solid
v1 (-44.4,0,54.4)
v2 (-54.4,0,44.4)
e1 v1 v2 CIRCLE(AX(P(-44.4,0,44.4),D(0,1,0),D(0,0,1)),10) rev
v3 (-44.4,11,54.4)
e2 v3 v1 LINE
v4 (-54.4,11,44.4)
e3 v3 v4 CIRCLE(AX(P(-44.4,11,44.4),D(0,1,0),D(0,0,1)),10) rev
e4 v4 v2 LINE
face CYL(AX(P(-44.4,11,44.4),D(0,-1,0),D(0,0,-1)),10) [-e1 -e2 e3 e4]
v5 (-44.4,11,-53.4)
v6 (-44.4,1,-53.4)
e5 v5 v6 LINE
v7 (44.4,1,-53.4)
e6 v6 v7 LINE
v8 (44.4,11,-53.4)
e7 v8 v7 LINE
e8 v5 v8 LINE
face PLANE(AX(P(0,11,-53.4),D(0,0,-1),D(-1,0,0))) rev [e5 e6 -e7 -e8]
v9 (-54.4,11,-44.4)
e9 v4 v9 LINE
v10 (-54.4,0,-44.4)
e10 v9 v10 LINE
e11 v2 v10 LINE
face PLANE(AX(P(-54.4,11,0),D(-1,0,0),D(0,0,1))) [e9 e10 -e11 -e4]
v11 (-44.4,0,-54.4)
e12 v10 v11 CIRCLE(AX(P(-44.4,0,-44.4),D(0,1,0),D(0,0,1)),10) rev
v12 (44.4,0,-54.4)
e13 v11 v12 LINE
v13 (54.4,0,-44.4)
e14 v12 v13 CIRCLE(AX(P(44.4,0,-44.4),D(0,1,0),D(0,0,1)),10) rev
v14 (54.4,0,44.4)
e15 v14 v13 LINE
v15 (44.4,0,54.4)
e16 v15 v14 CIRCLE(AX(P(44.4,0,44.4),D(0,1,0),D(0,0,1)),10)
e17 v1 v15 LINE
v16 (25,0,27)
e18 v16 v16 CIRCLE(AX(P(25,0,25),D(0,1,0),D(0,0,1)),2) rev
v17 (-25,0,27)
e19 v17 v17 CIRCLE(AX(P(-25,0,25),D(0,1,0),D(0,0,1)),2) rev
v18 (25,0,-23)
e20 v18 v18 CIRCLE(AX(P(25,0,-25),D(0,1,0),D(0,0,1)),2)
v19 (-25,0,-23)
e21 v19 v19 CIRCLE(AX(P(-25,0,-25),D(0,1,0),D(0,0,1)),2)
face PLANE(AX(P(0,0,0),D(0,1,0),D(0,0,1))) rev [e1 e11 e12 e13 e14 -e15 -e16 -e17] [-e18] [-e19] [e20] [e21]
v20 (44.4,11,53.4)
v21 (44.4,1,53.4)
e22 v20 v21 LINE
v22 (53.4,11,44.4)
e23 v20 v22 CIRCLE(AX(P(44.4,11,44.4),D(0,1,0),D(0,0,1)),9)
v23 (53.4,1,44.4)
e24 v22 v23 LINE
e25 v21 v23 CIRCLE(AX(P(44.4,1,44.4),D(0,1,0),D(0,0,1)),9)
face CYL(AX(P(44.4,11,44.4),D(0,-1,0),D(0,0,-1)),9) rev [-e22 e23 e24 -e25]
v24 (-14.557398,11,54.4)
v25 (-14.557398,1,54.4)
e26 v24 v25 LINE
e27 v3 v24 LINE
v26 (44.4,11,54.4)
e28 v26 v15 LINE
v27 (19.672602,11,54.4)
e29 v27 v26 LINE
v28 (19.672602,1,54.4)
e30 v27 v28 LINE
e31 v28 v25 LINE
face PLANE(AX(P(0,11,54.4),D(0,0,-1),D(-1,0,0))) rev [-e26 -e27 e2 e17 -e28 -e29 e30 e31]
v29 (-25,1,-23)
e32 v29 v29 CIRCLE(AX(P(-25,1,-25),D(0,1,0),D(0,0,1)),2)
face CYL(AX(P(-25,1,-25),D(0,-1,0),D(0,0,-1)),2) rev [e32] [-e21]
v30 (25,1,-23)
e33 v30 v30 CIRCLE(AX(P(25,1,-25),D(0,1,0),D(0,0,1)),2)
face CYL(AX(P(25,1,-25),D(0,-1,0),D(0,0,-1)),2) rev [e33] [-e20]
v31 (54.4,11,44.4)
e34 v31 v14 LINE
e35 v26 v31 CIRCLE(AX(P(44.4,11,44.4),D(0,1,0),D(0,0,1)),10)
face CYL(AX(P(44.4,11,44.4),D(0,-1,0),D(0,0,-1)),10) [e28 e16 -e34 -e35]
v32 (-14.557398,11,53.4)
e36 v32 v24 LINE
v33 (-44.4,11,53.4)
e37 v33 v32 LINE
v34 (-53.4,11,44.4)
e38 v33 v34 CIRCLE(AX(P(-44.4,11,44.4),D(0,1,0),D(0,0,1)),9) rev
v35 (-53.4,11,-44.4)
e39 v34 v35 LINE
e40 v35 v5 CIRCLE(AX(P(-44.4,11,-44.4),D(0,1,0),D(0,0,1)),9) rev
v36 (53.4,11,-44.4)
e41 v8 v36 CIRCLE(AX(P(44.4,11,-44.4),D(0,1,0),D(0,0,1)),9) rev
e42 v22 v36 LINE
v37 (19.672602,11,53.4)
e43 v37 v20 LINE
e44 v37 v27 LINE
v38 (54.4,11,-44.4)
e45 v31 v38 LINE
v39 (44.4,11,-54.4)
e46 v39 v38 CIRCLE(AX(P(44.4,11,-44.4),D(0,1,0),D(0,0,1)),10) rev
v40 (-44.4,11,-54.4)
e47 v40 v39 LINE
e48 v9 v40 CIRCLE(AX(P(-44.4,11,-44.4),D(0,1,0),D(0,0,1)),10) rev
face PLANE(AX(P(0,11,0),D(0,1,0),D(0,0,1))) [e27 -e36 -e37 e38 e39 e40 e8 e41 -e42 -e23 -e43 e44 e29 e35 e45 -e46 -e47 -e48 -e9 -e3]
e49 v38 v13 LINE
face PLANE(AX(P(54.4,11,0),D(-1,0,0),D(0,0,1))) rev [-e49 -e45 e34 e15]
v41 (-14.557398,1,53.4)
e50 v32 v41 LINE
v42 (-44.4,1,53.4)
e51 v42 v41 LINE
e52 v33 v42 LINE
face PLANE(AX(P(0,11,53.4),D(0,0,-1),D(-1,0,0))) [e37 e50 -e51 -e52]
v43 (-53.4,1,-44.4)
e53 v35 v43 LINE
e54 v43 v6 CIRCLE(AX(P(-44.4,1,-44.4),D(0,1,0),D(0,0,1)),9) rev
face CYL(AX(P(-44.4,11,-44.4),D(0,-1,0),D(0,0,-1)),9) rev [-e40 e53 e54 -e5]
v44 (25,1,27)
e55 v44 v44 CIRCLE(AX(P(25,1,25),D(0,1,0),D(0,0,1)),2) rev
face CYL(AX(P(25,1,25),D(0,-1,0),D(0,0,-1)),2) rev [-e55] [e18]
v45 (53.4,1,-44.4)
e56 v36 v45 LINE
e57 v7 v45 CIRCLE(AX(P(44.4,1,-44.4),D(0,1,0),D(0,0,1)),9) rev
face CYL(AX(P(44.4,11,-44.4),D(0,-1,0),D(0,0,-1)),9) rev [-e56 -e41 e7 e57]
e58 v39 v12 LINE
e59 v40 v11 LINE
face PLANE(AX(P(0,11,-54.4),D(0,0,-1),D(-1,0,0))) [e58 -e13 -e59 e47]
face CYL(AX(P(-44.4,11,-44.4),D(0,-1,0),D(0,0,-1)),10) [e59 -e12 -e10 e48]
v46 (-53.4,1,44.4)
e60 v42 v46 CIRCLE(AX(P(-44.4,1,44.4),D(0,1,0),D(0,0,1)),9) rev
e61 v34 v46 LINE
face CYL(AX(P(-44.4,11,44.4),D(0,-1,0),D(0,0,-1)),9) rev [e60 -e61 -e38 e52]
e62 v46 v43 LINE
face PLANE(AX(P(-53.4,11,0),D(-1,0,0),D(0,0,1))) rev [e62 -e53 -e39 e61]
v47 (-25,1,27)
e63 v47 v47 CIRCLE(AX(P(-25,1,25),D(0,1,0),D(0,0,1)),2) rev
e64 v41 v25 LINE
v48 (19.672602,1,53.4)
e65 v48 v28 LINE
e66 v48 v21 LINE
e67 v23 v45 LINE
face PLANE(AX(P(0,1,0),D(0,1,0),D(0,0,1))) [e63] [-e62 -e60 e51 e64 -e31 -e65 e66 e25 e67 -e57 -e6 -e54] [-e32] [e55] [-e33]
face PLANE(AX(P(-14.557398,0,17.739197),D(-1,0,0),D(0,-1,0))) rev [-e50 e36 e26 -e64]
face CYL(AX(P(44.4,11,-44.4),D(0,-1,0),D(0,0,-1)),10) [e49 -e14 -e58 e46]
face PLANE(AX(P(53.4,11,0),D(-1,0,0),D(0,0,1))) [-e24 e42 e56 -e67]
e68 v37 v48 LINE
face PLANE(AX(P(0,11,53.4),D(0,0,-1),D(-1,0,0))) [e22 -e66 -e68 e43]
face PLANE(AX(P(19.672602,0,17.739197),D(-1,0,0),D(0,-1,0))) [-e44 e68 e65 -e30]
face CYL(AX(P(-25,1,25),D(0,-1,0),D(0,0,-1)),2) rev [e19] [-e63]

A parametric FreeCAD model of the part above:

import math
import FreeCAD as App
import Part
import Sketcher

V = App.Vector

doc = App.newDocument("Part")
body = doc.addObject("PartDesign::Body", "Body")

# Sketch on XZ plane
sketch1 = body.newObject("Sketcher::SketchObject", "Sketch")
sketch1.AttachmentSupport = (doc.getObject("XZ_Plane"), [""])
sketch1.MapMode = "FlatFace"
sketch1.addGeometry(Part.ArcOfCircle(Part.Circle(V(-44.4, 44.4, 0), V(0, 0, 1), 9), math.radians(90), math.radians(180)), False)
sketch1.addGeometry(Part.LineSegment(V(-44.4, 53.4, 0), V(44.4, 53.4, 0)), False)
sketch1.addGeometry(Part.ArcOfCircle(Part.Circle(V(44.4, 44.4, 0), V(0, 0, 1), 9), math.radians(0), math.radians(90)), False)
sketch1.addGeometry(Part.LineSegment(V(53.4, 44.4, 0), V(53.4, -44.4, 0)), False)
sketch1.addGeometry(Part.ArcOfCircle(Part.Circle(V(44.4, -44.4, 0), V(0, 0, 1), 9), math.radians(-90), math.radians(0)), False)
sketch1.addGeometry(Part.LineSegment(V(44.4, -53.4, 0), V(-44.4, -53.4, 0)), False)
sketch1.addGeometry(Part.ArcOfCircle(Part.Circle(V(-44.4, -44.4, 0), V(0, 0, 1), 9), math.radians(180), math.radians(270)), False)
sketch1.addGeometry(Part.LineSegment(V(-53.4, -44.4, 0), V(-53.4, 44.4, 0)), False)
sketch1.addGeometry(Part.Circle(V(25, 25, 0), V(0, 0, 1), 2), False)
sketch1.addGeometry(Part.Circle(V(-25, 25, 0), V(0, 0, 1), 2), False)
sketch1.addGeometry(Part.Circle(V(25, -25, 0), V(0, 0, 1), 2), False)
sketch1.addGeometry(Part.Circle(V(-25, -25, 0), V(0, 0, 1), 2), False)
sketch1.addConstraint(Sketcher.Constraint("Tangent", 0, 1, 1, 1))
sketch1.addConstraint(Sketcher.Constraint("Tangent", 1, 2, 2, 2))
sketch1.addConstraint(Sketcher.Constraint("Tangent", 2, 1, 3, 1))
sketch1.addConstraint(Sketcher.Constraint("Tangent", 3, 2, 4, 2))
sketch1.addConstraint(Sketcher.Constraint("Tangent", 4, 1, 5, 1))
sketch1.addConstraint(Sketcher.Constraint("Tangent", 5, 2, 6, 2))
sketch1.addConstraint(Sketcher.Constraint("Tangent", 6, 1, 7, 1))
sketch1.addConstraint(Sketcher.Constraint("Tangent", 7, 2, 0, 2))
sketch1.addConstraint(Sketcher.Constraint("Horizontal", 1))
sketch1.addConstraint(Sketcher.Constraint("Vertical", 3))
sketch1.addConstraint(Sketcher.Constraint("Horizontal", 5))
sketch1.addConstraint(Sketcher.Constraint("Vertical", 7))
sketch1.addConstraint(Sketcher.Constraint("Equal", 0, 2))
sketch1.addConstraint(Sketcher.Constraint("Equal", 2, 4))
sketch1.addConstraint(Sketcher.Constraint("Equal", 4, 6))
sketch1.addConstraint(Sketcher.Constraint("Equal", 8, 9))
sketch1.addConstraint(Sketcher.Constraint("Equal", 9, 10))
sketch1.addConstraint(Sketcher.Constraint("Equal", 10, 11))
sketch1.addConstraint(Sketcher.Constraint("Symmetric", 0, 3, 4, 3, -1, 1))
sketch1.addConstraint(Sketcher.Constraint("Symmetric", 9, 3, 10, 3, -1, 1))
sketch1.addConstraint(Sketcher.Constraint("Symmetric", 8, 3, 11, 3, -1, 1))
sketch1.addConstraint(Sketcher.Constraint("Symmetric", 8, 3, 9, 3, -2))
sketch1.addConstraint(Sketcher.Constraint("Equal", 5, 3))
sketch1.addConstraint(Sketcher.Constraint("Diameter", 8, 4.0))
sketch1.addConstraint(Sketcher.Constraint("Radius", 0, 9.0))
sketch1.addConstraint(Sketcher.Constraint("DistanceX", 1, 1, 1, 2, 88.8))
sketch1.addConstraint(Sketcher.Constraint("DistanceX", -1, 1, 8, 3, 25.0))
sketch1.addConstraint(Sketcher.Constraint("DistanceY", -1, 1, 8, 3, 25.0))
pad1 = body.newObject("PartDesign::Pad", "Pad")
pad1.Profile = sketch1
pad1.Length = 1
pad1.Reversed = True

# Sketch on XZ plane
sketch2 = body.newObject("Sketcher::SketchObject", "Sketch001")
sketch2.AttachmentSupport = (doc.getObject("XZ_Plane"), [""])
sketch2.MapMode = "FlatFace"
sketch2.addGeometry(Part.ArcOfCircle(Part.Circle(V(-44, -44, 0), V(0, 0, 1), 10), math.radians(180), math.radians(270)), False)
sketch2.addGeometry(Part.LineSegment(V(-54, -44, 0), V(-54, 44, 0)), False)
sketch2.addGeometry(Part.ArcOfCircle(Part.Circle(V(-44, 44, 0), V(0, 0, 1), 10), math.radians(90), math.radians(180)), False)
sketch2.addGeometry(Part.LineSegment(V(-44, 54, 0), V(44, 54, 0)), False)
sketch2.addGeometry(Part.ArcOfCircle(Part.Circle(V(44, 44, 0), V(0, 0, 1), 10), math.radians(0), math.radians(90)), False)
sketch2.addGeometry(Part.LineSegment(V(54, 44, 0), V(54, -44, 0)), False)
sketch2.addGeometry(Part.ArcOfCircle(Part.Circle(V(44, -44, 0), V(0, 0, 1), 10), math.radians(-90), math.radians(0)), False)
sketch2.addGeometry(Part.LineSegment(V(44, -54, 0), V(-44, -54, 0)), False)
sketch2.addGeometry(Part.ArcOfCircle(Part.Circle(V(-44, 44, 0), V(0, 0, 1), 9), math.radians(90), math.radians(180)), False)
sketch2.addGeometry(Part.LineSegment(V(-53, 44, 0), V(-53, -44, 0)), False)
sketch2.addGeometry(Part.ArcOfCircle(Part.Circle(V(-44, -44, 0), V(0, 0, 1), 9), math.radians(180), math.radians(270)), False)
sketch2.addGeometry(Part.LineSegment(V(-44, -53, 0), V(44, -53, 0)), False)
sketch2.addGeometry(Part.ArcOfCircle(Part.Circle(V(44, -44, 0), V(0, 0, 1), 9), math.radians(-90), math.radians(0)), False)
sketch2.addGeometry(Part.LineSegment(V(53, -44, 0), V(53, 44, 0)), False)
sketch2.addGeometry(Part.ArcOfCircle(Part.Circle(V(44, 44, 0), V(0, 0, 1), 9), math.radians(0), math.radians(90)), False)
sketch2.addGeometry(Part.LineSegment(V(44, 53, 0), V(-44, 53, 0)), False)
sketch2.addConstraint(Sketcher.Constraint("Tangent", 0, 1, 1, 1))
sketch2.addConstraint(Sketcher.Constraint("Tangent", 1, 2, 2, 2))
sketch2.addConstraint(Sketcher.Constraint("Tangent", 2, 1, 3, 1))
sketch2.addConstraint(Sketcher.Constraint("Tangent", 3, 2, 4, 2))
sketch2.addConstraint(Sketcher.Constraint("Tangent", 4, 1, 5, 1))
sketch2.addConstraint(Sketcher.Constraint("Tangent", 5, 2, 6, 2))
sketch2.addConstraint(Sketcher.Constraint("Tangent", 6, 1, 7, 1))
sketch2.addConstraint(Sketcher.Constraint("Tangent", 7, 2, 0, 2))
sketch2.addConstraint(Sketcher.Constraint("Tangent", 8, 2, 9, 1))
sketch2.addConstraint(Sketcher.Constraint("Tangent", 9, 2, 10, 1))
sketch2.addConstraint(Sketcher.Constraint("Tangent", 10, 2, 11, 1))
sketch2.addConstraint(Sketcher.Constraint("Tangent", 11, 2, 12, 1))
sketch2.addConstraint(Sketcher.Constraint("Tangent", 12, 2, 13, 1))
sketch2.addConstraint(Sketcher.Constraint("Tangent", 13, 2, 14, 1))
sketch2.addConstraint(Sketcher.Constraint("Tangent", 14, 2, 15, 1))
sketch2.addConstraint(Sketcher.Constraint("Tangent", 15, 2, 8, 1))
sketch2.addConstraint(Sketcher.Constraint("Vertical", 1))
sketch2.addConstraint(Sketcher.Constraint("Horizontal", 3))
sketch2.addConstraint(Sketcher.Constraint("Vertical", 5))
sketch2.addConstraint(Sketcher.Constraint("Horizontal", 7))
sketch2.addConstraint(Sketcher.Constraint("Vertical", 9))
sketch2.addConstraint(Sketcher.Constraint("Horizontal", 11))
sketch2.addConstraint(Sketcher.Constraint("Vertical", 13))
sketch2.addConstraint(Sketcher.Constraint("Horizontal", 15))
sketch2.addConstraint(Sketcher.Constraint("Coincident", 8, 3, 2, 3))
sketch2.addConstraint(Sketcher.Constraint("Coincident", 10, 3, 0, 3))
sketch2.addConstraint(Sketcher.Constraint("Coincident", 12, 3, 6, 3))
sketch2.addConstraint(Sketcher.Constraint("Equal", 0, 2))
sketch2.addConstraint(Sketcher.Constraint("Equal", 2, 4))
sketch2.addConstraint(Sketcher.Constraint("Equal", 4, 6))
sketch2.addConstraint(Sketcher.Constraint("Equal", 12, 14))
sketch2.addConstraint(Sketcher.Constraint("Symmetric", 0, 3, 4, 3, -1, 1))
sketch2.addConstraint(Sketcher.Constraint("Equal", 15, 1))
sketch2.addConstraint(Sketcher.Constraint("Radius", 0, 10.0))
sketch2.addConstraint(Sketcher.Constraint("Radius", 8, 9.0))
sketch2.addConstraint(Sketcher.Constraint("DistanceX", 3, 1, 3, 2, 88.8))
pad2 = body.newObject("PartDesign::Pad", "Pad001")
pad2.Profile = sketch2
pad2.Length = 11
pad2.Reversed = True

# Sketch on XY plane
sketch3 = body.newObject("Sketcher::SketchObject", "Sketch002")
sketch3.AttachmentSupport = (doc.getObject("XY_Plane"), [""])
sketch3.MapMode = "FlatFace"
sketch3.AttachmentOffset = App.Placement(V(0, 0, 54.4), App.Rotation())
sketch3.addGeometry(Part.LineSegment(V(20, 20, 0), V(20, 1, 0)), False)
sketch3.addGeometry(Part.LineSegment(V(20, 1, 0), V(-15, 1, 0)), False)
sketch3.addGeometry(Part.LineSegment(V(-15, 1, 0), V(-15, 20, 0)), False)
sketch3.addGeometry(Part.LineSegment(V(-15, 20, 0), V(20, 20, 0)), False)
sketch3.addConstraint(Sketcher.Constraint("Coincident", 0, 2, 1, 1))
sketch3.addConstraint(Sketcher.Constraint("Coincident", 1, 2, 2, 1))
sketch3.addConstraint(Sketcher.Constraint("Coincident", 2, 2, 3, 1))
sketch3.addConstraint(Sketcher.Constraint("Coincident", 3, 2, 0, 1))
sketch3.addConstraint(Sketcher.Constraint("Vertical", 0))
sketch3.addConstraint(Sketcher.Constraint("Horizontal", 1))
sketch3.addConstraint(Sketcher.Constraint("Vertical", 2))
sketch3.addConstraint(Sketcher.Constraint("Horizontal", 3))
sketch3.addConstraint(Sketcher.Constraint("DistanceY", -1, 1, 0, 2, 1.0))
sketch3.addConstraint(Sketcher.Constraint("DistanceX", 1, 2, 1, 1, 34.23))
sketch3.addConstraint(Sketcher.Constraint("DistanceX", -1, 1, 0, 2, 19.672602))
sketch3.addConstraint(Sketcher.Constraint("DistanceY", 0, 2, 0, 1, 19.064188))
pocket1 = body.newObject("PartDesign::Pocket", "Pocket")
pocket1.Profile = sketch3
pocket1.Length = 1

doc.recompute()
